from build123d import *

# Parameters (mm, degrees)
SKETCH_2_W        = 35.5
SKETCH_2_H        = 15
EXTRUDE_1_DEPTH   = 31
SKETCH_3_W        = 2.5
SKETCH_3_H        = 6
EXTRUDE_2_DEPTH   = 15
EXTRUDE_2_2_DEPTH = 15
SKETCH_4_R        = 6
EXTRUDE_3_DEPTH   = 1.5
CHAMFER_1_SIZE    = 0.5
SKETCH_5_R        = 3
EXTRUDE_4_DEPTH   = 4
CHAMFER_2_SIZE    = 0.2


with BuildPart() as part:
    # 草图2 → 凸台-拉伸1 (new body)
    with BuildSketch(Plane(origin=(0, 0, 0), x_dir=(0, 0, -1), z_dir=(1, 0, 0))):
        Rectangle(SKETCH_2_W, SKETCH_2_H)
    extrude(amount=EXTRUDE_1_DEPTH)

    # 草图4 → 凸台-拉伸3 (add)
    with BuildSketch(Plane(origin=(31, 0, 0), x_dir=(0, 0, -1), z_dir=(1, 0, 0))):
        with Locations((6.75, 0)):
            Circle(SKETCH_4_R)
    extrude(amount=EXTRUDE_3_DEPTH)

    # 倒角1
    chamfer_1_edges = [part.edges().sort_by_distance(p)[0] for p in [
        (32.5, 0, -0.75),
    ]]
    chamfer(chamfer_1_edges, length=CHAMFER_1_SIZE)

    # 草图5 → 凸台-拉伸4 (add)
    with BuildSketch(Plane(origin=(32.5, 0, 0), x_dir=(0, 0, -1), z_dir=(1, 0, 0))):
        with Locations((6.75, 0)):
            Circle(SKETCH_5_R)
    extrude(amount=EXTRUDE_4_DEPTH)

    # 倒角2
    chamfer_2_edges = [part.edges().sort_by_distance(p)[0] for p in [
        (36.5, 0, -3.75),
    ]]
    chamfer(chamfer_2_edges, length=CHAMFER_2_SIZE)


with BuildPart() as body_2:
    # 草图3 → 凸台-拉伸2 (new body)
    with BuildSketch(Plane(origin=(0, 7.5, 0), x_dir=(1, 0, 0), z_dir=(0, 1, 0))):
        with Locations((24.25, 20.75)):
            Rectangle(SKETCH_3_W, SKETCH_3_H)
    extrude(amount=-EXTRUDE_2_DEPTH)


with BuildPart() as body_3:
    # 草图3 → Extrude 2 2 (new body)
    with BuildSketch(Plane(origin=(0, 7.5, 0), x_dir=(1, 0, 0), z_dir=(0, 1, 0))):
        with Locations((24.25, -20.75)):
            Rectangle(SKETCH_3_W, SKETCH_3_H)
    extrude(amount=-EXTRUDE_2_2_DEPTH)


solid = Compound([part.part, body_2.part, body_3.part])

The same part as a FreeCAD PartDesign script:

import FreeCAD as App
import Part
import Sketcher
Q = App.Units.Quantity


def edges_at(feature, points):
    """Names of the edges that pass closest to the given points."""
    edges = feature.Shape.Edges
    near = lambda p: min(range(len(edges)), key=lambda i: edges[i].distToShape(Part.Vertex(*p))[0])
    return sorted({f"Edge{near(p) + 1}" for p in points})

doc = App.newDocument("Part")
body = doc.addObject("PartDesign::Body", "Body")

# Sketch on YZ plane
sketch1 = body.newObject("Sketcher::SketchObject", "Sketch")
sketch1.AttachmentSupport = (doc.getObject("YZ_Plane"), [""])
sketch1.MapMode = "FlatFace"
sketch1.addGeometry([
    Part.LineSegment(App.Vector(8, 18, 0), App.Vector(-8, 18, 0)),
    Part.LineSegment(App.Vector(-8, 18, 0), App.Vector(-8, -18, 0)),
    Part.LineSegment(App.Vector(-8, -18, 0), App.Vector(8, -18, 0)),
    Part.LineSegment(App.Vector(8, -18, 0), App.Vector(8, 18, 0)),
], False)
sketch1.addConstraint([
    Sketcher.Constraint("Coincident", 0, 2, 1, 1),
    Sketcher.Constraint("Coincident", 1, 2, 2, 1),
    Sketcher.Constraint("Coincident", 2, 2, 3, 1),
    Sketcher.Constraint("Coincident", 3, 2, 0, 1),
    Sketcher.Constraint("Horizontal", 0),
    Sketcher.Constraint("Vertical", 1),
    Sketcher.Constraint("Horizontal", 2),
    Sketcher.Constraint("Vertical", 3),
    Sketcher.Constraint("Symmetric", 0, 2, 2, 2, -1, 1),
    Sketcher.Constraint("DistanceX", 0, 2, 0, 1, Q("15 mm")),
    Sketcher.Constraint("DistanceY", 1, 2, 1, 1, Q("35.5 mm")),
])
pad1 = body.newObject("PartDesign::Pad", "Pad")
pad1.Profile = sketch1
pad1.Length = 31

# Sketch on YZ plane
sketch2 = body.newObject("Sketcher::SketchObject", "Sketch001")
sketch2.AttachmentSupport = (doc.getObject("YZ_Plane"), [""])
sketch2.MapMode = "FlatFace"
sketch2.AttachmentOffset = App.Placement(App.Vector(0, 0, 31), App.Rotation())
sketch2.addGeometry(Part.Circle(App.Vector(0, -7, 0), App.Vector(0, 0, 1), 6), False)
sketch2.addConstraint([
    Sketcher.Constraint("PointOnObject", 0, 3, -2),
    Sketcher.Constraint("Diameter", 0, Q("12 mm")),
    Sketcher.Constraint("DistanceY", 0, 3, -1, 1, Q("6.75 mm")),
])
pad2 = body.newObject("PartDesign::Pad", "Pad001")
pad2.Profile = sketch2
pad2.Length = 1.5
doc.recompute()

chamfer = body.newObject("PartDesign::Chamfer", "Chamfer")
chamfer.Base = (pad2, edges_at(pad2, [(32.5, 0, -0.75)]))
chamfer.Size = 0.5

# Sketch on YZ plane
sketch3 = body.newObject("Sketcher::SketchObject", "Sketch002")
sketch3.AttachmentSupport = (doc.getObject("YZ_Plane"), [""])
sketch3.MapMode = "FlatFace"
sketch3.AttachmentOffset = App.Placement(App.Vector(0, 0, 32.5), App.Rotation())
sketch3.addGeometry(Part.Circle(App.Vector(0, -6.8, 0), App.Vector(0, 0, 1), 3), False)
sketch3.addConstraint([
    Sketcher.Constraint("PointOnObject", 0, 3, -2),
    Sketcher.Constraint("Diameter", 0, Q("6 mm")),
    Sketcher.Constraint("DistanceY", 0, 3, -1, 1, Q("6.75 mm")),
])
pad3 = body.newObject("PartDesign::Pad", "Pad002")
pad3.Profile = sketch3
pad3.Length = 4
doc.recompute()

chamfer2 = body.newObject("PartDesign::Chamfer", "Chamfer001")
chamfer2.Base = (pad3, edges_at(pad3, [(36.5, 0, -3.75)]))
chamfer2.Size = 0.2
body2 = doc.addObject("PartDesign::Body", "Body001")

# Sketch on XZ plane
sketch4 = body2.newObject("Sketcher::SketchObject", "Sketch003")
sketch4.AttachmentSupport = (doc.getObject("XZ_Plane001"), [""])
sketch4.MapMode = "FlatFace"
sketch4.AttachmentOffset = App.Placement(App.Vector(0, 0, -7.5), App.Rotation())
sketch4.addGeometry([
    Part.LineSegment(App.Vector(23, -23.8, 0), App.Vector(23, -17.8, 0)),
    Part.LineSegment(App.Vector(23, -17.8, 0), App.Vector(25.5, -17.8, 0)),
    Part.LineSegment(App.Vector(25.5, -17.8, 0), App.Vector(25.5, -23.8, 0)),
    Part.LineSegment(App.Vector(25.5, -23.8, 0), App.Vector(23, -23.8, 0)),
], False)
sketch4.addConstraint([
    Sketcher.Constraint("Coincident", 0, 2, 1, 1),
    Sketcher.Constraint("Coincident", 1, 2, 2, 1),
    Sketcher.Constraint("Coincident", 2, 2, 3, 1),
    Sketcher.Constraint("Coincident", 3, 2, 0, 1),
    Sketcher.Constraint("Vertical", 0),
    Sketcher.Constraint("Horizontal", 1),
    Sketcher.Constraint("Vertical", 2),
    Sketcher.Constraint("Horizontal", 3),
    Sketcher.Constraint("DistanceY", 0, 1, 0, 2, Q("6 mm")),
    Sketcher.Constraint("DistanceX", 1, 1, 1, 2, Q("2.5 mm")),
    Sketcher.Constraint("DistanceX", -1, 1, 0, 2, Q("23 mm")),
    Sketcher.Constraint("DistanceY", 0, 2, -1, 1, Q("17.75 mm")),
])
pad4 = body2.newObject("PartDesign::Pad", "Pad003")
pad4.Profile = sketch4
pad4.Length = 15
body3 = doc.addObject("PartDesign::Body", "Body002")

# Sketch on XZ plane
sketch5 = body3.newObject("Sketcher::SketchObject", "Sketch004")
sketch5.AttachmentSupport = (doc.getObject("XZ_Plane002"), [""])
sketch5.MapMode = "FlatFace"
sketch5.AttachmentOffset = App.Placement(App.Vector(0, 0, -7.5), App.Rotation())
sketch5.addGeometry([
    Part.LineSegment(App.Vector(23, 17.8, 0), App.Vector(23, 23.8, 0)),
    Part.LineSegment(App.Vector(23, 23.8, 0), App.Vector(25.5, 23.8, 0)),
    Part.LineSegment(App.Vector(25.5, 23.8, 0), App.Vector(25.5, 17.8, 0)),
    Part.LineSegment(App.Vector(25.5, 17.8, 0), App.Vector(23, 17.8, 0)),
], False)
sketch5.addConstraint([
    Sketcher.Constraint("Coincident", 0, 2, 1, 1),
    Sketcher.Constraint("Coincident", 1, 2, 2, 1),
    Sketcher.Constraint("Coincident", 2, 2, 3, 1),
    Sketcher.Constraint("Coincident", 3, 2, 0, 1),
    Sketcher.Constraint("Vertical", 0),
    Sketcher.Constraint("Horizontal", 1),
    Sketcher.Constraint("Vertical", 2),
    Sketcher.Constraint("Horizontal", 3),
    Sketcher.Constraint("DistanceY", 0, 1, 0, 2, Q("6 mm")),
    Sketcher.Constraint("DistanceX", 1, 1, 1, 2, Q("2.5 mm")),
    Sketcher.Constraint("DistanceX", -1, 1, 0, 2, Q("23 mm")),
    Sketcher.Constraint("DistanceY", -1, 1, 0, 2, Q("23.75 mm")),
])
pad5 = body3.newObject("PartDesign::Pad", "Pad004")
pad5.Profile = sketch5
pad5.Length = 15

doc.recompute()
